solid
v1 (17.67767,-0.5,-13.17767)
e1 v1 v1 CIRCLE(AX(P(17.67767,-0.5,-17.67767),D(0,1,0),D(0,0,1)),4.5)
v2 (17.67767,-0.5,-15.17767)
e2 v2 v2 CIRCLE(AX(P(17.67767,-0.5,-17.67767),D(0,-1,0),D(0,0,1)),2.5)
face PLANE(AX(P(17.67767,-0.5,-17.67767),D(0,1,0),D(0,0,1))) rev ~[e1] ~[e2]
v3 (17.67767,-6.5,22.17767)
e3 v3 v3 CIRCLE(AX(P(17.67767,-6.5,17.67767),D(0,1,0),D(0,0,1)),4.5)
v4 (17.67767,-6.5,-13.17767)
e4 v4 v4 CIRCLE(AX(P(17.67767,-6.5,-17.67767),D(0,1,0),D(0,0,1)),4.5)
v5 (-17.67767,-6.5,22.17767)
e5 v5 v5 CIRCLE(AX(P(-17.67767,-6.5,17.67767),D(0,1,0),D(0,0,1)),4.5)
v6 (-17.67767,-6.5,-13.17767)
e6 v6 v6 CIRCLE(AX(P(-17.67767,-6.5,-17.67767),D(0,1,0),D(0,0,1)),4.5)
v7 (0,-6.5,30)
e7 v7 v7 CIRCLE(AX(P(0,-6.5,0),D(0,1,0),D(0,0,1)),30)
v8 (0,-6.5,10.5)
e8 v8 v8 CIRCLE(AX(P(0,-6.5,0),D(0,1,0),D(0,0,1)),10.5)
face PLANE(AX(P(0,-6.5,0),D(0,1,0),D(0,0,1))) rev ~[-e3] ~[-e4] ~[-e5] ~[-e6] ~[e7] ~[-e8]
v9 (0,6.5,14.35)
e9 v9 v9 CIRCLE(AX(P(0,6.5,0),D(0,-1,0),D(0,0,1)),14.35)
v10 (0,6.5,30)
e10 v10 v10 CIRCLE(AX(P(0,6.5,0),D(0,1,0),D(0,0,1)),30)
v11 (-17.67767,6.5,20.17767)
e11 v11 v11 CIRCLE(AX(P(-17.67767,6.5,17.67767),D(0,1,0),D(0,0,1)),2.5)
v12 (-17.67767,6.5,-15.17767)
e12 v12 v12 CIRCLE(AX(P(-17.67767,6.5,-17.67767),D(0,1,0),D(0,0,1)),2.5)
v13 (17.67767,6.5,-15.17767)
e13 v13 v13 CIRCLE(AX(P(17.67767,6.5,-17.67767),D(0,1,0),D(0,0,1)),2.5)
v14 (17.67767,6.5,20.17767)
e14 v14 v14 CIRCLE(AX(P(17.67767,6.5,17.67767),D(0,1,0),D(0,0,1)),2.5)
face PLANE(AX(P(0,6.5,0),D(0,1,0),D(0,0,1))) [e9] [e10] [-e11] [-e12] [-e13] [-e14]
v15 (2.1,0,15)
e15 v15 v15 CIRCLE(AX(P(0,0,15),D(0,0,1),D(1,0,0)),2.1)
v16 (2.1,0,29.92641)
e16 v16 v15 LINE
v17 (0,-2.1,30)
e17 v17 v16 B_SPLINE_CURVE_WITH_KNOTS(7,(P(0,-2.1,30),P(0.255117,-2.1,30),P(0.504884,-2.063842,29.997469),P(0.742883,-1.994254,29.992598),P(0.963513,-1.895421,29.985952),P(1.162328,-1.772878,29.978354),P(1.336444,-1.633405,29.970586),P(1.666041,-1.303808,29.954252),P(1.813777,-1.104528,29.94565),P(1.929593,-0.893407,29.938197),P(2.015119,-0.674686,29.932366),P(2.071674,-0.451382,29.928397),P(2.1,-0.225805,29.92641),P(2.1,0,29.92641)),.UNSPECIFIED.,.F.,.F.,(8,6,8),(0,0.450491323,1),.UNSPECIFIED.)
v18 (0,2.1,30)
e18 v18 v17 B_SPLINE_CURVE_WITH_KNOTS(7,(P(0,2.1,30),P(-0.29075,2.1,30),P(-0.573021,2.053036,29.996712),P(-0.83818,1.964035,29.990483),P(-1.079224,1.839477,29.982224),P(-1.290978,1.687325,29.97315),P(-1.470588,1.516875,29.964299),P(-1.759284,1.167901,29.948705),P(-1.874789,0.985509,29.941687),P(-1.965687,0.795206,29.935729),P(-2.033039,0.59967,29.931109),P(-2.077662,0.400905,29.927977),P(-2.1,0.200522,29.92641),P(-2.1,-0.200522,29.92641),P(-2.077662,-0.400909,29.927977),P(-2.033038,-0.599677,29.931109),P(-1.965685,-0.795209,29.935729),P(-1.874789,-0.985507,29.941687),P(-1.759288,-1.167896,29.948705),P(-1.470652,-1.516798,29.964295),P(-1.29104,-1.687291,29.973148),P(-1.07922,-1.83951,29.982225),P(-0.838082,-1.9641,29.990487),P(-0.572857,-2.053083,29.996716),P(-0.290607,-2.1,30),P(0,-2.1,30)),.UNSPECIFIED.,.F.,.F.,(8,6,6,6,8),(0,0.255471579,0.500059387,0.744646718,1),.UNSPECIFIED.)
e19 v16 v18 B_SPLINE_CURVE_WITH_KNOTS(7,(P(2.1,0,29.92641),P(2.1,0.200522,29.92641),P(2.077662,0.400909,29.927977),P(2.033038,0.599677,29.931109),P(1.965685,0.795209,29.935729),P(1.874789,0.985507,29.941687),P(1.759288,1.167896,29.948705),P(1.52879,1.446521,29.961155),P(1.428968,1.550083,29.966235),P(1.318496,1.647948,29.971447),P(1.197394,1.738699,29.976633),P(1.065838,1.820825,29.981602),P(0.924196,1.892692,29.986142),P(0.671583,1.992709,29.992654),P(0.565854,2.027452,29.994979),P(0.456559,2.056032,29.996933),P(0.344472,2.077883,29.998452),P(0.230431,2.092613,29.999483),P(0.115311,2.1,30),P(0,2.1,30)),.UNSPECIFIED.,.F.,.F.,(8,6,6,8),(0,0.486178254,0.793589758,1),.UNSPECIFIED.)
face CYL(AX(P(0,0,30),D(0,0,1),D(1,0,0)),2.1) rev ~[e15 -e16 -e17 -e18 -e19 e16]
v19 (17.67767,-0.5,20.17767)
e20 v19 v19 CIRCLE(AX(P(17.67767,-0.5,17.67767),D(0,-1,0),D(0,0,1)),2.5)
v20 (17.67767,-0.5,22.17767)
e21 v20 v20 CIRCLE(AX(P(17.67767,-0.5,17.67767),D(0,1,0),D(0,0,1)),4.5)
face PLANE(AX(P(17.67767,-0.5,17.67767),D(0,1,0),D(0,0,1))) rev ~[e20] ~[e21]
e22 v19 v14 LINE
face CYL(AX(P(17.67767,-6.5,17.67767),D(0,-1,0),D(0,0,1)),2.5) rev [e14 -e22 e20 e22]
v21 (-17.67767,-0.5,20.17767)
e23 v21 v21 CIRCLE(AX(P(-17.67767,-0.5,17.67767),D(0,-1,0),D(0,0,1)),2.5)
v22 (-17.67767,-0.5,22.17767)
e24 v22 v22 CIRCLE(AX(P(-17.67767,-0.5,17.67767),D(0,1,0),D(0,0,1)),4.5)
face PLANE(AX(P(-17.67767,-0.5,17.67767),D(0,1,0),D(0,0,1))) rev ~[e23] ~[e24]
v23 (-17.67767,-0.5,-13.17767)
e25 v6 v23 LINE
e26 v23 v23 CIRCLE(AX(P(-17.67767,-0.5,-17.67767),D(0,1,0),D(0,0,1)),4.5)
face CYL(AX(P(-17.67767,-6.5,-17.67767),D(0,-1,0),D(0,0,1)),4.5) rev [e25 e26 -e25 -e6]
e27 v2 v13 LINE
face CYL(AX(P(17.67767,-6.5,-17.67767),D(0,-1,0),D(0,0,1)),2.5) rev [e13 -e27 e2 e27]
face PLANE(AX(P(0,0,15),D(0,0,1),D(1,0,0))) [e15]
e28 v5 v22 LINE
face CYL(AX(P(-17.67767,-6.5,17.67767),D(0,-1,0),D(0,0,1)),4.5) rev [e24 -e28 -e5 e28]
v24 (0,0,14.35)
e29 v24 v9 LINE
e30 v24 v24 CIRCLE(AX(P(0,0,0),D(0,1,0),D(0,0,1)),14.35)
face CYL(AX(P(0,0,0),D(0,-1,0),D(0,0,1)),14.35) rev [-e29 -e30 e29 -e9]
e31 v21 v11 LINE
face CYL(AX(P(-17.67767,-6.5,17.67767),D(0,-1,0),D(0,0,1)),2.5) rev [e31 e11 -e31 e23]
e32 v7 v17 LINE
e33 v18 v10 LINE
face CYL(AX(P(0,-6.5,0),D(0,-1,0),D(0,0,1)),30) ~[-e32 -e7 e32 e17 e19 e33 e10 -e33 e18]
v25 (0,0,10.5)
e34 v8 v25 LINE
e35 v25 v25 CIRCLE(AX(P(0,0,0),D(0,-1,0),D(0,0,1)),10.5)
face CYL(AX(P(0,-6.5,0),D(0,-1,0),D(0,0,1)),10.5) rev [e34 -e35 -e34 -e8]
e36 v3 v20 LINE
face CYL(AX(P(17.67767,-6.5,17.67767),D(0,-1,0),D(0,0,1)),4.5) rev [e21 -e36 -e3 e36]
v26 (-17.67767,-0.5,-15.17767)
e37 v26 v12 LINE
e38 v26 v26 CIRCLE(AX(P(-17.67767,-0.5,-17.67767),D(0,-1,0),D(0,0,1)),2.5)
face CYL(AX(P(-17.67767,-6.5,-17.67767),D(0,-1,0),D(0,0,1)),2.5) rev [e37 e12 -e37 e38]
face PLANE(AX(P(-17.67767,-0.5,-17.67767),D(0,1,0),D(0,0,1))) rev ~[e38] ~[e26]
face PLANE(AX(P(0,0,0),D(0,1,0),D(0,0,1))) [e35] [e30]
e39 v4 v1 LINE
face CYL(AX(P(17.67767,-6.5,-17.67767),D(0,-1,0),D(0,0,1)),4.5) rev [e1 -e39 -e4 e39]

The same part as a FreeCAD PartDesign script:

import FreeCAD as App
import Part
import Sketcher
Q = App.Units.Quantity

doc = App.newDocument("Part")
params = doc.addObject("Spreadsheet::Sheet", "Params")
for row, (alias, value) in enumerate([
    ("sketch1_diameter", "60 mm"),
    ("sketch1_diameter2", "5 mm"),
    ("sketch1_diameter3", "21 mm"),
    ("pad1_length", "6.5 mm"),
    ("pad1_length2", "6.5 mm"),
    ("sketch2_diameter", "28.7 mm"),
    ("pocket1_length", "7.9375 mm"),
    ("sketch3_diameter", "9 mm"),
    ("pocket2_length", "6 mm"),
    ("sketch4_diameter", "4.2 mm"),
    ("pocket3_length", "15 mm"),
], start=1):
    params.set(f"A{row}", alias)
    params.set(f"B{row}", "=" + value)
    params.setAlias(f"B{row}", alias)

body = doc.addObject("PartDesign::Body", "Body")

sketch1 = body.newObject("Sketcher::SketchObject", "Sketch")
sketch1.AttachmentSupport = (doc.getObject("XZ_Plane"), [""])
sketch1.MapMode = "FlatFace"
sketch1.addGeometry([
    Part.Circle(App.Vector(0, 0, 0), App.Vector(0, 0, 1), 30),
    Part.Circle(App.Vector(-17.7, -17.7, 0), App.Vector(0, 0, 1), 2.5),
    Part.Circle(App.Vector(-17.7, 17.7, 0), App.Vector(0, 0, 1), 2.5),
    Part.Circle(App.Vector(17.7, -17.7, 0), App.Vector(0, 0, 1), 2.5),
    Part.Circle(App.Vector(0, 0, 0), App.Vector(0, 0, 1), 10.5),
    Part.Circle(App.Vector(17.7, 17.7, 0), App.Vector(0, 0, 1), 2.5),
], False)
sketch1.addConstraint([
    Sketcher.Constraint("Coincident", 0, 3, -1, 1),
    Sketcher.Constraint("Coincident", 4, 3, -1, 1),
    Sketcher.Constraint("Equal", 1, 2),
    Sketcher.Constraint("Equal", 2, 3),
    Sketcher.Constraint("Equal", 3, 5),
    Sketcher.Constraint("Symmetric", 2, 3, 3, 3, -1, 1),
    Sketcher.Constraint("Symmetric", 1, 3, 5, 3, -1, 1),
    Sketcher.Constraint("Symmetric", 1, 3, 3, 3, -2),
    Sketcher.Constraint("Diameter", 0, Q("60 mm")),
    Sketcher.Constraint("Diameter", 1, Q("5 mm")),
    Sketcher.Constraint("Diameter", 4, Q("21 mm")),
    Sketcher.Constraint("DistanceX", 1, 3, -1, 1, Q("17.67767 mm")),
    Sketcher.Constraint("DistanceY", 1, 3, -1, 1, Q("17.67767 mm")),
])
sketch1.setExpression("Constraints[8]", "Params.sketch1_diameter")
sketch1.setExpression("Constraints[9]", "Params.sketch1_diameter2")
sketch1.setExpression("Constraints[10]", "Params.sketch1_diameter3")
pad1 = body.newObject("PartDesign::Pad", "Pad")
pad1.Profile = sketch1
pad1.Type = "TwoLengths"
pad1.setExpression("Length", "Params.pad1_length")
pad1.setExpression("Length2", "Params.pad1_length2")
pad1.Reversed = True

sketch2 = body.newObject("Sketcher::SketchObject", "Sketch001")
sketch2.AttachmentSupport = (doc.getObject("XZ_Plane"), [""])
sketch2.MapMode = "FlatFace"
sketch2.addGeometry(Part.Circle(App.Vector(0, 0, 0), App.Vector(0, 0, 1), 14), False)
sketch2.addConstraint([
    Sketcher.Constraint("Coincident", 0, 3, -1, 1),
    Sketcher.Constraint("Diameter", 0, Q("28.7 mm")),
])
sketch2.setExpression("Constraints[1]", "Params.sketch2_diameter")
pocket1 = body.newObject("PartDesign::Pocket", "Pocket")
pocket1.Profile = sketch2
pocket1.setExpression("Length", "Params.pocket1_length")

sketch3 = body.newObject("Sketcher::SketchObject", "Sketch002")
sketch3.AttachmentSupport = (doc.getObject("XZ_Plane"), [""])
sketch3.MapMode = "FlatFace"
sketch3.AttachmentOffset = App.Placement(App.Vector(0, 0, 6.5), App.Rotation())
sketch3.addGeometry([
    Part.Circle(App.Vector(17.7, -17.7, 0), App.Vector(0, 0, 1), 4.5),
    Part.Circle(App.Vector(17.7, 17.7, 0), App.Vector(0, 0, 1), 4.5),
    Part.Circle(App.Vector(-17.7, 17.7, 0), App.Vector(0, 0, 1), 4.5),
    Part.Circle(App.Vector(-17.7, -17.7, 0), App.Vector(0, 0, 1), 4.5),
], False)
sketch3.addConstraint([
    Sketcher.Constraint("Equal", 0, 1),
    Sketcher.Constraint("Equal", 1, 2),
    Sketcher.Constraint("Equal", 2, 3),
    Sketcher.Constraint("Symmetric", 0, 3, 2, 3, -1, 1),
    Sketcher.Constraint("Symmetric", 1, 3, 3, 3, -1, 1),
    Sketcher.Constraint("Symmetric", 1, 3, 2, 3, -2),
    Sketcher.Constraint("Diameter", 0, Q("9 mm")),
    Sketcher.Constraint("DistanceX", -1, 1, 0, 3, Q("17.67767 mm")),
    Sketcher.Constraint("DistanceY", 0, 3, -1, 1, Q("17.67767 mm")),
])
sketch3.setExpression("Constraints[6]", "Params.sketch3_diameter")
pocket2 = body.newObject("PartDesign::Pocket", "Pocket001")
pocket2.Profile = sketch3
pocket2.setExpression("Length", "Params.pocket2_length")

sketch4 = body.newObject("Sketcher::SketchObject", "Sketch003")
sketch4.AttachmentSupport = (doc.getObject("XY_Plane"), [""])
sketch4.MapMode = "FlatFace"
sketch4.AttachmentOffset = App.Placement(App.Vector(0, 0, 30), App.Rotation())
sketch4.addGeometry(Part.Circle(App.Vector(0, 0, 0), App.Vector(0, 0, 1), 2.1), False)
sketch4.addConstraint([
    Sketcher.Constraint("Coincident", 0, 3, -1, 1),
    Sketcher.Constraint("Diameter", 0, Q("4.2 mm")),
])
sketch4.setExpression("Constraints[1]", "Params.sketch4_diameter")
pocket3 = body.newObject("PartDesign::Pocket", "Pocket002")
pocket3.Profile = sketch4
pocket3.setExpression("Length", "Params.pocket3_length")

doc.recompute()
